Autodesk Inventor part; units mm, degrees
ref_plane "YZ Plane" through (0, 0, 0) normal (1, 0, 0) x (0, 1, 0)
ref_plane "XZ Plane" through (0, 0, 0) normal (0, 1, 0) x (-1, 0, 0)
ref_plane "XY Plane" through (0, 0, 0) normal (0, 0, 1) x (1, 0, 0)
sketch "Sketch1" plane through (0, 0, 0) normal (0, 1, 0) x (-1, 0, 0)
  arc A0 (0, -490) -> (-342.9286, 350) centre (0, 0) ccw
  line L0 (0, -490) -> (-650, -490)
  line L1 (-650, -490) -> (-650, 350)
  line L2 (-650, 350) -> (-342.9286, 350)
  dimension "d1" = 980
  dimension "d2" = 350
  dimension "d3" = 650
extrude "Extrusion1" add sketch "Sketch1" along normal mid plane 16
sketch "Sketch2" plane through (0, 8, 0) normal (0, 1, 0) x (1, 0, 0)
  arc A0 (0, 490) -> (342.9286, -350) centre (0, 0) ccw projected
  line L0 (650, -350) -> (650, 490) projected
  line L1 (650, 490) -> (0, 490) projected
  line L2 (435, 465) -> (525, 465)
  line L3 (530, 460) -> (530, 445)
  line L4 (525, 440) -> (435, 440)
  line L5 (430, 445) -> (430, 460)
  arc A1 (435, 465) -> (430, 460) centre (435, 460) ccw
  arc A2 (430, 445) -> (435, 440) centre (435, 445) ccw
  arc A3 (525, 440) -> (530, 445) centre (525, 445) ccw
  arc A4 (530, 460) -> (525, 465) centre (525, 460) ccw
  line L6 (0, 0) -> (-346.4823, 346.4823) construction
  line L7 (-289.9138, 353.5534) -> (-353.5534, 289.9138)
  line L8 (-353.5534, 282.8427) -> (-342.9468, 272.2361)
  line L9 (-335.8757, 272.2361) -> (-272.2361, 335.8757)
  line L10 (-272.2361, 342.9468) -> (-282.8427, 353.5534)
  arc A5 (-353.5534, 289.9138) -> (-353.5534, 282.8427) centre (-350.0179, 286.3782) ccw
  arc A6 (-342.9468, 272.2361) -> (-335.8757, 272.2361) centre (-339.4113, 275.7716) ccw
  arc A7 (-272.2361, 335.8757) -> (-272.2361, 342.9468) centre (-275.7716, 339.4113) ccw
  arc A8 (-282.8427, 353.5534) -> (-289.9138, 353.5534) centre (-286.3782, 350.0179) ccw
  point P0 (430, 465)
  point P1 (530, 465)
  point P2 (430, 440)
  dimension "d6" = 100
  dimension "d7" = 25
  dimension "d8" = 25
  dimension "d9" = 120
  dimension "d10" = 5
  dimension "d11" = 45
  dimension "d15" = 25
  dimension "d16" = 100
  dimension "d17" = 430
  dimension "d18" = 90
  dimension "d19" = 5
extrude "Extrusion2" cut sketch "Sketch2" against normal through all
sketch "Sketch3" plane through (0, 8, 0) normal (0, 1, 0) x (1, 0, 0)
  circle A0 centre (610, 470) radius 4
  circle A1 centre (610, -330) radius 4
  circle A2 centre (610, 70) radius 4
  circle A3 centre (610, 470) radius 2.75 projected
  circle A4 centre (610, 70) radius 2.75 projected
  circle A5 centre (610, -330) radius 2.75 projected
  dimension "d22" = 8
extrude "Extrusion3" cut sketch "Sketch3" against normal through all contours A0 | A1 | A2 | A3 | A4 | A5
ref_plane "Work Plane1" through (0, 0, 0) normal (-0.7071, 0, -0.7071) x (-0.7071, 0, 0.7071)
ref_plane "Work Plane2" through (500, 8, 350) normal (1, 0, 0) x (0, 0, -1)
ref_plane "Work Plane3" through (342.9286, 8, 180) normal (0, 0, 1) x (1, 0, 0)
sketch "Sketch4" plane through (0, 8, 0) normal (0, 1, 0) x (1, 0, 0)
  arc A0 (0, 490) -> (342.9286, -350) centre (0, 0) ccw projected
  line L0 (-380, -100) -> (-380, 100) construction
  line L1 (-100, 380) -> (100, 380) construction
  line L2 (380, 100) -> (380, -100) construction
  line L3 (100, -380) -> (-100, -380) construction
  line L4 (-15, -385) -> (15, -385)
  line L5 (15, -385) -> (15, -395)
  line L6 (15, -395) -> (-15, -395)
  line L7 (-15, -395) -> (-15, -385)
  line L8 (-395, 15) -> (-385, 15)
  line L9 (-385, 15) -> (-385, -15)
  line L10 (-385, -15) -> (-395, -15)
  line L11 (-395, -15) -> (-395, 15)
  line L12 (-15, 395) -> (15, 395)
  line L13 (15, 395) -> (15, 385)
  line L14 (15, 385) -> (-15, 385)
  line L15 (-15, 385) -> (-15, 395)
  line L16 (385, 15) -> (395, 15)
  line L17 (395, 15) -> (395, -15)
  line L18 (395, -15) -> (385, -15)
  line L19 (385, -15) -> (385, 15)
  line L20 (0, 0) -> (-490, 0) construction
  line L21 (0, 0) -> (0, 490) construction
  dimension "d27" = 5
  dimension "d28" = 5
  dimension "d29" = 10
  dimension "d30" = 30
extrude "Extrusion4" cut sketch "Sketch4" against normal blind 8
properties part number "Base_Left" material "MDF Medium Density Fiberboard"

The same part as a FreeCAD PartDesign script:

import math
import FreeCAD as App
import Part
import Sketcher

V = App.Vector


def add_polygon(sketch, points):
    """Adds a closed chain of lines whose ends are joined by coincident constraints."""
    first, n = sketch.GeometryCount, len(points)
    for a, b in zip(points, points[1:] + points[:1]):
        sketch.addGeometry(Part.LineSegment(App.Vector(*a, 0), App.Vector(*b, 0)), False)
    for i in range(n):
        sketch.addConstraint(Sketcher.Constraint("Coincident", first + i, 2, first + (i + 1) % n, 1))

doc = App.newDocument("Part")
body = doc.addObject("PartDesign::Body", "Body")

# Sketch on XZ plane
sketch1 = doc.addObject("Sketcher::SketchObject", "Sketch")
body.addObject(sketch1)
sketch1.AttachmentSupport = (doc.XZ_Plane, [""])
sketch1.MapMode = "FlatFace"
sketch1.addGeometry([
    Part.LineSegment(V(650, -490, 0), V(0, -490, 0)),
    Part.ArcOfCircle(Part.Circle(V(0, 0, 0), V(0, 0, 1), 490), math.radians(46), math.radians(270)),
    Part.LineSegment(V(343, 350, 0), V(650, 350, 0)),
    Part.LineSegment(V(650, 350, 0), V(650, -490, 0)),
], False)
sketch1.addConstraint([
    Sketcher.Constraint("Tangent", 0, 2, 1, 2),
    Sketcher.Constraint("Coincident", 1, 1, 2, 1),
    Sketcher.Constraint("Coincident", 2, 2, 3, 1),
    Sketcher.Constraint("Coincident", 3, 2, 0, 1),
    Sketcher.Constraint("Horizontal", 0),
    Sketcher.Constraint("Horizontal", 2),
    Sketcher.Constraint("Vertical", 3),
    Sketcher.Constraint("Coincident", 1, 3, -1, 1),
    Sketcher.Constraint("Radius", 1, 490.0),
    Sketcher.Constraint("DistanceX", 0, 2, 0, 1, 650.0),
    Sketcher.Constraint("DistanceY", -1, 1, 2, 2, 350.0),
])
pad1 = doc.addObject("PartDesign::Pad", "Pad")
body.addObject(pad1)
pad1.Profile = sketch1
pad1.Length = 16
pad1.Midplane = True

# Sketch on XZ plane
sketch2 = doc.addObject("Sketcher::SketchObject", "Sketch001")
body.addObject(sketch2)
sketch2.AttachmentSupport = (doc.XZ_Plane, [""])
sketch2.MapMode = "FlatFace"
sketch2.AttachmentOffset = App.Placement(V(0, 0, -8), App.Rotation())
sketch2.addGeometry([
    Part.LineSegment(V(525, -465, 0), V(435, -465, 0)),  # 0
    Part.ArcOfCircle(Part.Circle(V(435, -460, 0), V(0, 0, 1), 5), math.radians(180), math.radians(270)),  # 1
    Part.LineSegment(V(430, -460, 0), V(430, -445, 0)),  # 2
    Part.ArcOfCircle(Part.Circle(V(435, -445, 0), V(0, 0, 1), 5), math.radians(90), math.radians(180)),  # 3
    Part.LineSegment(V(435, -440, 0), V(525, -440, 0)),  # 4
    Part.ArcOfCircle(Part.Circle(V(525, -445, 0), V(0, 0, 1), 5), math.radians(0), math.radians(90)),  # 5
    Part.LineSegment(V(530, -445, 0), V(530, -460, 0)),  # 6
    Part.ArcOfCircle(Part.Circle(V(525, -460, 0), V(0, 0, 1), 5), math.radians(-90), math.radians(0)),  # 7
    Part.ArcOfCircle(Part.Circle(V(-286.4, -350, 0), V(0, 0, 1), 5), math.radians(-135), math.radians(-45)),  # 8
    Part.LineSegment(V(-289.9, -353.6, 0), V(-353.6, -289.9, 0)),  # 9
    Part.ArcOfCircle(Part.Circle(V(-350, -286.4, 0), V(0, 0, 1), 5), math.radians(135), math.radians(225)),  # 10
    Part.LineSegment(V(-353.6, -282.8, 0), V(-342.9, -272.2, 0)),  # 11
    Part.ArcOfCircle(Part.Circle(V(-339.4, -275.8, 0), V(0, 0, 1), 5), math.radians(45), math.radians(135)),  # 12
    Part.LineSegment(V(-335.9, -272.2, 0), V(-272.2, -335.9, 0)),  # 13
    Part.ArcOfCircle(Part.Circle(V(-275.8, -339.4, 0), V(0, 0, 1), 5), math.radians(-45), math.radians(45)),  # 14
    Part.LineSegment(V(-272.2, -342.9, 0), V(-282.8, -353.6, 0)),  # 15
], False)
sketch2.addConstraint([
    Sketcher.Constraint("Tangent", 0, 2, 1, 2),
    Sketcher.Constraint("Tangent", 1, 1, 2, 1),
    Sketcher.Constraint("Tangent", 2, 2, 3, 2),
    Sketcher.Constraint("Tangent", 3, 1, 4, 1),
    Sketcher.Constraint("Tangent", 4, 2, 5, 2),
    Sketcher.Constraint("Tangent", 5, 1, 6, 1),
    Sketcher.Constraint("Tangent", 6, 2, 7, 2),
    Sketcher.Constraint("Tangent", 7, 1, 0, 1),
    Sketcher.Constraint("Tangent", 8, 1, 9, 1),
    Sketcher.Constraint("Tangent", 9, 2, 10, 2),
    Sketcher.Constraint("Tangent", 10, 1, 11, 1),
    Sketcher.Constraint("Tangent", 11, 2, 12, 2),
    Sketcher.Constraint("Tangent", 12, 1, 13, 1),
    Sketcher.Constraint("Tangent", 13, 2, 14, 2),
    Sketcher.Constraint("Tangent", 14, 1, 15, 1),
    Sketcher.Constraint("Tangent", 15, 2, 8, 2),
    Sketcher.Constraint("Horizontal", 0),
    Sketcher.Constraint("Vertical", 2),
    Sketcher.Constraint("Horizontal", 4),
    Sketcher.Constraint("Vertical", 6),
    Sketcher.Constraint("Equal", 1, 3),
    Sketcher.Constraint("Equal", 3, 5),
    Sketcher.Constraint("Equal", 5, 7),
    Sketcher.Constraint("Equal", 7, 8),
    Sketcher.Constraint("Equal", 8, 10),
    Sketcher.Constraint("Equal", 10, 12),
    Sketcher.Constraint("Equal", 12, 14),
    Sketcher.Constraint("Perpendicular", 9, 11),
    Sketcher.Constraint("Perpendicular", 11, 13),
    Sketcher.Constraint("Perpendicular", 13, 15),
    Sketcher.Constraint("Horizontal", 11, 2, 12, 1),
    Sketcher.Constraint("Radius", 1, 5.0),
    Sketcher.Constraint("DistanceX", 0, 2, 0, 1, 90.0),
    Sketcher.Constraint("Distance", 9, 90.0),
    Sketcher.Constraint("DistanceX", -1, 1, 1, 1, 430.0),
    Sketcher.Constraint("DistanceY", 0, 2, 3, 1, 25.0),
    Sketcher.Constraint("Distance", 11, 15.0),
    Sketcher.Constraint("DistanceY", 1, 3, -1, 1, 460.0),
    Sketcher.Constraint("DistanceY", 8, 3, -1, 1, 350.018),
    Sketcher.Constraint("DistanceX", 10, 3, -1, 1, 350.018),
])
pocket1 = doc.addObject("PartDesign::Pocket", "Pocket")
body.addObject(pocket1)
pocket1.Profile = sketch2
pocket1.Type = "ThroughAll"
pocket1.Reversed = True

# Sketch on XZ plane
sketch3 = doc.addObject("Sketcher::SketchObject", "Sketch002")
body.addObject(sketch3)
sketch3.AttachmentSupport = (doc.XZ_Plane, [""])
sketch3.MapMode = "FlatFace"
sketch3.AttachmentOffset = App.Placement(V(0, 0, -8), App.Rotation())
sketch3.addGeometry([
    Part.Circle(V(610, -470, 0), V(0, 0, 1), 4),
    Part.Circle(V(610, 330, 0), V(0, 0, 1), 4),
    Part.Circle(V(610, -70, 0), V(0, 0, 1), 4),
], False)
sketch3.addConstraint([
    Sketcher.Constraint("Equal", 0, 1),
    Sketcher.Constraint("Equal", 1, 2),
    Sketcher.Constraint("Vertical", 0, 3, 1, 3),
    Sketcher.Constraint("Vertical", 1, 3, 2, 3),
    Sketcher.Constraint("Diameter", 0, 8.0),
    Sketcher.Constraint("DistanceX", -1, 1, 0, 3, 610.0),
    Sketcher.Constraint("DistanceY", 0, 3, -1, 1, 470.0),
    Sketcher.Constraint("DistanceY", -1, 1, 1, 3, 330.0),
    Sketcher.Constraint("DistanceY", 2, 3, -1, 1, 70.0),
])
pocket2 = doc.addObject("PartDesign::Pocket", "Pocket001")
body.addObject(pocket2)
pocket2.Profile = sketch3
pocket2.Type = "ThroughAll"
pocket2.Reversed = True

# Sketch on XZ plane
sketch4 = doc.addObject("Sketcher::SketchObject", "Sketch003")
body.addObject(sketch4)
sketch4.AttachmentSupport = (doc.XZ_Plane, [""])
sketch4.MapMode = "FlatFace"
sketch4.AttachmentOffset = App.Placement(V(0, 0, -8), App.Rotation())
add_polygon(sketch4, [(15, 385), (-15, 385), (-15, 395), (15, 395)])  # lines 0-3
add_polygon(sketch4, [(-385, -15), (-395, -15), (-395, 15), (-385, 15)])  # lines 4-7
add_polygon(sketch4, [(15, -395), (-15, -395), (-15, -385), (15, -385)])  # lines 8-11
add_polygon(sketch4, [(395, -15), (385, -15), (385, 15), (395, 15)])  # lines 12-15
sketch4.addConstraint([
    Sketcher.Constraint("Horizontal", 0),
    Sketcher.Constraint("Vertical", 1),
    Sketcher.Constraint("Horizontal", 2),
    Sketcher.Constraint("Vertical", 3),
    Sketcher.Constraint("Horizontal", 4),
    Sketcher.Constraint("Vertical", 5),
    Sketcher.Constraint("Horizontal", 6),
    Sketcher.Constraint("Vertical", 7),
    Sketcher.Constraint("Horizontal", 8),
    Sketcher.Constraint("Vertical", 9),
    Sketcher.Constraint("Horizontal", 10),
    Sketcher.Constraint("Vertical", 11),
    Sketcher.Constraint("Horizontal", 12),
    Sketcher.Constraint("Vertical", 13),
    Sketcher.Constraint("Horizontal", 14),
    Sketcher.Constraint("Vertical", 15),
    Sketcher.Constraint("Symmetric", 2, 2, 8, 2, -1, 1),
    Sketcher.Constraint("Symmetric", 0, 2, 10, 2, -1, 1),
    Sketcher.Constraint("Symmetric", 6, 2, 12, 2, -1, 1),
    Sketcher.Constraint("Symmetric", 4, 2, 14, 2, -1, 1),
    Sketcher.Constraint("Horizontal", 7, 2, 12, 2),
    Sketcher.Constraint("Vertical", 1, 2, 8, 2),
    Sketcher.Constraint("Equal", 14, 1),
    Sketcher.Constraint("Equal", 10, 5),
    Sketcher.Constraint("DistanceX", 0, 2, 0, 1, 30.0),
    Sketcher.Constraint("DistanceX", 4, 2, 4, 1, 10.0),
    Sketcher.Constraint("DistanceY", -1, 1, 0, 2, 385.0),
    Sketcher.Constraint("DistanceX", 4, 2, -1, 1, 395.0),
])
pocket3 = doc.addObject("PartDesign::Pocket", "Pocket002")
body.addObject(pocket3)
pocket3.Profile = sketch4
pocket3.Length = 8
pocket3.Reversed = True

doc.recompute()
